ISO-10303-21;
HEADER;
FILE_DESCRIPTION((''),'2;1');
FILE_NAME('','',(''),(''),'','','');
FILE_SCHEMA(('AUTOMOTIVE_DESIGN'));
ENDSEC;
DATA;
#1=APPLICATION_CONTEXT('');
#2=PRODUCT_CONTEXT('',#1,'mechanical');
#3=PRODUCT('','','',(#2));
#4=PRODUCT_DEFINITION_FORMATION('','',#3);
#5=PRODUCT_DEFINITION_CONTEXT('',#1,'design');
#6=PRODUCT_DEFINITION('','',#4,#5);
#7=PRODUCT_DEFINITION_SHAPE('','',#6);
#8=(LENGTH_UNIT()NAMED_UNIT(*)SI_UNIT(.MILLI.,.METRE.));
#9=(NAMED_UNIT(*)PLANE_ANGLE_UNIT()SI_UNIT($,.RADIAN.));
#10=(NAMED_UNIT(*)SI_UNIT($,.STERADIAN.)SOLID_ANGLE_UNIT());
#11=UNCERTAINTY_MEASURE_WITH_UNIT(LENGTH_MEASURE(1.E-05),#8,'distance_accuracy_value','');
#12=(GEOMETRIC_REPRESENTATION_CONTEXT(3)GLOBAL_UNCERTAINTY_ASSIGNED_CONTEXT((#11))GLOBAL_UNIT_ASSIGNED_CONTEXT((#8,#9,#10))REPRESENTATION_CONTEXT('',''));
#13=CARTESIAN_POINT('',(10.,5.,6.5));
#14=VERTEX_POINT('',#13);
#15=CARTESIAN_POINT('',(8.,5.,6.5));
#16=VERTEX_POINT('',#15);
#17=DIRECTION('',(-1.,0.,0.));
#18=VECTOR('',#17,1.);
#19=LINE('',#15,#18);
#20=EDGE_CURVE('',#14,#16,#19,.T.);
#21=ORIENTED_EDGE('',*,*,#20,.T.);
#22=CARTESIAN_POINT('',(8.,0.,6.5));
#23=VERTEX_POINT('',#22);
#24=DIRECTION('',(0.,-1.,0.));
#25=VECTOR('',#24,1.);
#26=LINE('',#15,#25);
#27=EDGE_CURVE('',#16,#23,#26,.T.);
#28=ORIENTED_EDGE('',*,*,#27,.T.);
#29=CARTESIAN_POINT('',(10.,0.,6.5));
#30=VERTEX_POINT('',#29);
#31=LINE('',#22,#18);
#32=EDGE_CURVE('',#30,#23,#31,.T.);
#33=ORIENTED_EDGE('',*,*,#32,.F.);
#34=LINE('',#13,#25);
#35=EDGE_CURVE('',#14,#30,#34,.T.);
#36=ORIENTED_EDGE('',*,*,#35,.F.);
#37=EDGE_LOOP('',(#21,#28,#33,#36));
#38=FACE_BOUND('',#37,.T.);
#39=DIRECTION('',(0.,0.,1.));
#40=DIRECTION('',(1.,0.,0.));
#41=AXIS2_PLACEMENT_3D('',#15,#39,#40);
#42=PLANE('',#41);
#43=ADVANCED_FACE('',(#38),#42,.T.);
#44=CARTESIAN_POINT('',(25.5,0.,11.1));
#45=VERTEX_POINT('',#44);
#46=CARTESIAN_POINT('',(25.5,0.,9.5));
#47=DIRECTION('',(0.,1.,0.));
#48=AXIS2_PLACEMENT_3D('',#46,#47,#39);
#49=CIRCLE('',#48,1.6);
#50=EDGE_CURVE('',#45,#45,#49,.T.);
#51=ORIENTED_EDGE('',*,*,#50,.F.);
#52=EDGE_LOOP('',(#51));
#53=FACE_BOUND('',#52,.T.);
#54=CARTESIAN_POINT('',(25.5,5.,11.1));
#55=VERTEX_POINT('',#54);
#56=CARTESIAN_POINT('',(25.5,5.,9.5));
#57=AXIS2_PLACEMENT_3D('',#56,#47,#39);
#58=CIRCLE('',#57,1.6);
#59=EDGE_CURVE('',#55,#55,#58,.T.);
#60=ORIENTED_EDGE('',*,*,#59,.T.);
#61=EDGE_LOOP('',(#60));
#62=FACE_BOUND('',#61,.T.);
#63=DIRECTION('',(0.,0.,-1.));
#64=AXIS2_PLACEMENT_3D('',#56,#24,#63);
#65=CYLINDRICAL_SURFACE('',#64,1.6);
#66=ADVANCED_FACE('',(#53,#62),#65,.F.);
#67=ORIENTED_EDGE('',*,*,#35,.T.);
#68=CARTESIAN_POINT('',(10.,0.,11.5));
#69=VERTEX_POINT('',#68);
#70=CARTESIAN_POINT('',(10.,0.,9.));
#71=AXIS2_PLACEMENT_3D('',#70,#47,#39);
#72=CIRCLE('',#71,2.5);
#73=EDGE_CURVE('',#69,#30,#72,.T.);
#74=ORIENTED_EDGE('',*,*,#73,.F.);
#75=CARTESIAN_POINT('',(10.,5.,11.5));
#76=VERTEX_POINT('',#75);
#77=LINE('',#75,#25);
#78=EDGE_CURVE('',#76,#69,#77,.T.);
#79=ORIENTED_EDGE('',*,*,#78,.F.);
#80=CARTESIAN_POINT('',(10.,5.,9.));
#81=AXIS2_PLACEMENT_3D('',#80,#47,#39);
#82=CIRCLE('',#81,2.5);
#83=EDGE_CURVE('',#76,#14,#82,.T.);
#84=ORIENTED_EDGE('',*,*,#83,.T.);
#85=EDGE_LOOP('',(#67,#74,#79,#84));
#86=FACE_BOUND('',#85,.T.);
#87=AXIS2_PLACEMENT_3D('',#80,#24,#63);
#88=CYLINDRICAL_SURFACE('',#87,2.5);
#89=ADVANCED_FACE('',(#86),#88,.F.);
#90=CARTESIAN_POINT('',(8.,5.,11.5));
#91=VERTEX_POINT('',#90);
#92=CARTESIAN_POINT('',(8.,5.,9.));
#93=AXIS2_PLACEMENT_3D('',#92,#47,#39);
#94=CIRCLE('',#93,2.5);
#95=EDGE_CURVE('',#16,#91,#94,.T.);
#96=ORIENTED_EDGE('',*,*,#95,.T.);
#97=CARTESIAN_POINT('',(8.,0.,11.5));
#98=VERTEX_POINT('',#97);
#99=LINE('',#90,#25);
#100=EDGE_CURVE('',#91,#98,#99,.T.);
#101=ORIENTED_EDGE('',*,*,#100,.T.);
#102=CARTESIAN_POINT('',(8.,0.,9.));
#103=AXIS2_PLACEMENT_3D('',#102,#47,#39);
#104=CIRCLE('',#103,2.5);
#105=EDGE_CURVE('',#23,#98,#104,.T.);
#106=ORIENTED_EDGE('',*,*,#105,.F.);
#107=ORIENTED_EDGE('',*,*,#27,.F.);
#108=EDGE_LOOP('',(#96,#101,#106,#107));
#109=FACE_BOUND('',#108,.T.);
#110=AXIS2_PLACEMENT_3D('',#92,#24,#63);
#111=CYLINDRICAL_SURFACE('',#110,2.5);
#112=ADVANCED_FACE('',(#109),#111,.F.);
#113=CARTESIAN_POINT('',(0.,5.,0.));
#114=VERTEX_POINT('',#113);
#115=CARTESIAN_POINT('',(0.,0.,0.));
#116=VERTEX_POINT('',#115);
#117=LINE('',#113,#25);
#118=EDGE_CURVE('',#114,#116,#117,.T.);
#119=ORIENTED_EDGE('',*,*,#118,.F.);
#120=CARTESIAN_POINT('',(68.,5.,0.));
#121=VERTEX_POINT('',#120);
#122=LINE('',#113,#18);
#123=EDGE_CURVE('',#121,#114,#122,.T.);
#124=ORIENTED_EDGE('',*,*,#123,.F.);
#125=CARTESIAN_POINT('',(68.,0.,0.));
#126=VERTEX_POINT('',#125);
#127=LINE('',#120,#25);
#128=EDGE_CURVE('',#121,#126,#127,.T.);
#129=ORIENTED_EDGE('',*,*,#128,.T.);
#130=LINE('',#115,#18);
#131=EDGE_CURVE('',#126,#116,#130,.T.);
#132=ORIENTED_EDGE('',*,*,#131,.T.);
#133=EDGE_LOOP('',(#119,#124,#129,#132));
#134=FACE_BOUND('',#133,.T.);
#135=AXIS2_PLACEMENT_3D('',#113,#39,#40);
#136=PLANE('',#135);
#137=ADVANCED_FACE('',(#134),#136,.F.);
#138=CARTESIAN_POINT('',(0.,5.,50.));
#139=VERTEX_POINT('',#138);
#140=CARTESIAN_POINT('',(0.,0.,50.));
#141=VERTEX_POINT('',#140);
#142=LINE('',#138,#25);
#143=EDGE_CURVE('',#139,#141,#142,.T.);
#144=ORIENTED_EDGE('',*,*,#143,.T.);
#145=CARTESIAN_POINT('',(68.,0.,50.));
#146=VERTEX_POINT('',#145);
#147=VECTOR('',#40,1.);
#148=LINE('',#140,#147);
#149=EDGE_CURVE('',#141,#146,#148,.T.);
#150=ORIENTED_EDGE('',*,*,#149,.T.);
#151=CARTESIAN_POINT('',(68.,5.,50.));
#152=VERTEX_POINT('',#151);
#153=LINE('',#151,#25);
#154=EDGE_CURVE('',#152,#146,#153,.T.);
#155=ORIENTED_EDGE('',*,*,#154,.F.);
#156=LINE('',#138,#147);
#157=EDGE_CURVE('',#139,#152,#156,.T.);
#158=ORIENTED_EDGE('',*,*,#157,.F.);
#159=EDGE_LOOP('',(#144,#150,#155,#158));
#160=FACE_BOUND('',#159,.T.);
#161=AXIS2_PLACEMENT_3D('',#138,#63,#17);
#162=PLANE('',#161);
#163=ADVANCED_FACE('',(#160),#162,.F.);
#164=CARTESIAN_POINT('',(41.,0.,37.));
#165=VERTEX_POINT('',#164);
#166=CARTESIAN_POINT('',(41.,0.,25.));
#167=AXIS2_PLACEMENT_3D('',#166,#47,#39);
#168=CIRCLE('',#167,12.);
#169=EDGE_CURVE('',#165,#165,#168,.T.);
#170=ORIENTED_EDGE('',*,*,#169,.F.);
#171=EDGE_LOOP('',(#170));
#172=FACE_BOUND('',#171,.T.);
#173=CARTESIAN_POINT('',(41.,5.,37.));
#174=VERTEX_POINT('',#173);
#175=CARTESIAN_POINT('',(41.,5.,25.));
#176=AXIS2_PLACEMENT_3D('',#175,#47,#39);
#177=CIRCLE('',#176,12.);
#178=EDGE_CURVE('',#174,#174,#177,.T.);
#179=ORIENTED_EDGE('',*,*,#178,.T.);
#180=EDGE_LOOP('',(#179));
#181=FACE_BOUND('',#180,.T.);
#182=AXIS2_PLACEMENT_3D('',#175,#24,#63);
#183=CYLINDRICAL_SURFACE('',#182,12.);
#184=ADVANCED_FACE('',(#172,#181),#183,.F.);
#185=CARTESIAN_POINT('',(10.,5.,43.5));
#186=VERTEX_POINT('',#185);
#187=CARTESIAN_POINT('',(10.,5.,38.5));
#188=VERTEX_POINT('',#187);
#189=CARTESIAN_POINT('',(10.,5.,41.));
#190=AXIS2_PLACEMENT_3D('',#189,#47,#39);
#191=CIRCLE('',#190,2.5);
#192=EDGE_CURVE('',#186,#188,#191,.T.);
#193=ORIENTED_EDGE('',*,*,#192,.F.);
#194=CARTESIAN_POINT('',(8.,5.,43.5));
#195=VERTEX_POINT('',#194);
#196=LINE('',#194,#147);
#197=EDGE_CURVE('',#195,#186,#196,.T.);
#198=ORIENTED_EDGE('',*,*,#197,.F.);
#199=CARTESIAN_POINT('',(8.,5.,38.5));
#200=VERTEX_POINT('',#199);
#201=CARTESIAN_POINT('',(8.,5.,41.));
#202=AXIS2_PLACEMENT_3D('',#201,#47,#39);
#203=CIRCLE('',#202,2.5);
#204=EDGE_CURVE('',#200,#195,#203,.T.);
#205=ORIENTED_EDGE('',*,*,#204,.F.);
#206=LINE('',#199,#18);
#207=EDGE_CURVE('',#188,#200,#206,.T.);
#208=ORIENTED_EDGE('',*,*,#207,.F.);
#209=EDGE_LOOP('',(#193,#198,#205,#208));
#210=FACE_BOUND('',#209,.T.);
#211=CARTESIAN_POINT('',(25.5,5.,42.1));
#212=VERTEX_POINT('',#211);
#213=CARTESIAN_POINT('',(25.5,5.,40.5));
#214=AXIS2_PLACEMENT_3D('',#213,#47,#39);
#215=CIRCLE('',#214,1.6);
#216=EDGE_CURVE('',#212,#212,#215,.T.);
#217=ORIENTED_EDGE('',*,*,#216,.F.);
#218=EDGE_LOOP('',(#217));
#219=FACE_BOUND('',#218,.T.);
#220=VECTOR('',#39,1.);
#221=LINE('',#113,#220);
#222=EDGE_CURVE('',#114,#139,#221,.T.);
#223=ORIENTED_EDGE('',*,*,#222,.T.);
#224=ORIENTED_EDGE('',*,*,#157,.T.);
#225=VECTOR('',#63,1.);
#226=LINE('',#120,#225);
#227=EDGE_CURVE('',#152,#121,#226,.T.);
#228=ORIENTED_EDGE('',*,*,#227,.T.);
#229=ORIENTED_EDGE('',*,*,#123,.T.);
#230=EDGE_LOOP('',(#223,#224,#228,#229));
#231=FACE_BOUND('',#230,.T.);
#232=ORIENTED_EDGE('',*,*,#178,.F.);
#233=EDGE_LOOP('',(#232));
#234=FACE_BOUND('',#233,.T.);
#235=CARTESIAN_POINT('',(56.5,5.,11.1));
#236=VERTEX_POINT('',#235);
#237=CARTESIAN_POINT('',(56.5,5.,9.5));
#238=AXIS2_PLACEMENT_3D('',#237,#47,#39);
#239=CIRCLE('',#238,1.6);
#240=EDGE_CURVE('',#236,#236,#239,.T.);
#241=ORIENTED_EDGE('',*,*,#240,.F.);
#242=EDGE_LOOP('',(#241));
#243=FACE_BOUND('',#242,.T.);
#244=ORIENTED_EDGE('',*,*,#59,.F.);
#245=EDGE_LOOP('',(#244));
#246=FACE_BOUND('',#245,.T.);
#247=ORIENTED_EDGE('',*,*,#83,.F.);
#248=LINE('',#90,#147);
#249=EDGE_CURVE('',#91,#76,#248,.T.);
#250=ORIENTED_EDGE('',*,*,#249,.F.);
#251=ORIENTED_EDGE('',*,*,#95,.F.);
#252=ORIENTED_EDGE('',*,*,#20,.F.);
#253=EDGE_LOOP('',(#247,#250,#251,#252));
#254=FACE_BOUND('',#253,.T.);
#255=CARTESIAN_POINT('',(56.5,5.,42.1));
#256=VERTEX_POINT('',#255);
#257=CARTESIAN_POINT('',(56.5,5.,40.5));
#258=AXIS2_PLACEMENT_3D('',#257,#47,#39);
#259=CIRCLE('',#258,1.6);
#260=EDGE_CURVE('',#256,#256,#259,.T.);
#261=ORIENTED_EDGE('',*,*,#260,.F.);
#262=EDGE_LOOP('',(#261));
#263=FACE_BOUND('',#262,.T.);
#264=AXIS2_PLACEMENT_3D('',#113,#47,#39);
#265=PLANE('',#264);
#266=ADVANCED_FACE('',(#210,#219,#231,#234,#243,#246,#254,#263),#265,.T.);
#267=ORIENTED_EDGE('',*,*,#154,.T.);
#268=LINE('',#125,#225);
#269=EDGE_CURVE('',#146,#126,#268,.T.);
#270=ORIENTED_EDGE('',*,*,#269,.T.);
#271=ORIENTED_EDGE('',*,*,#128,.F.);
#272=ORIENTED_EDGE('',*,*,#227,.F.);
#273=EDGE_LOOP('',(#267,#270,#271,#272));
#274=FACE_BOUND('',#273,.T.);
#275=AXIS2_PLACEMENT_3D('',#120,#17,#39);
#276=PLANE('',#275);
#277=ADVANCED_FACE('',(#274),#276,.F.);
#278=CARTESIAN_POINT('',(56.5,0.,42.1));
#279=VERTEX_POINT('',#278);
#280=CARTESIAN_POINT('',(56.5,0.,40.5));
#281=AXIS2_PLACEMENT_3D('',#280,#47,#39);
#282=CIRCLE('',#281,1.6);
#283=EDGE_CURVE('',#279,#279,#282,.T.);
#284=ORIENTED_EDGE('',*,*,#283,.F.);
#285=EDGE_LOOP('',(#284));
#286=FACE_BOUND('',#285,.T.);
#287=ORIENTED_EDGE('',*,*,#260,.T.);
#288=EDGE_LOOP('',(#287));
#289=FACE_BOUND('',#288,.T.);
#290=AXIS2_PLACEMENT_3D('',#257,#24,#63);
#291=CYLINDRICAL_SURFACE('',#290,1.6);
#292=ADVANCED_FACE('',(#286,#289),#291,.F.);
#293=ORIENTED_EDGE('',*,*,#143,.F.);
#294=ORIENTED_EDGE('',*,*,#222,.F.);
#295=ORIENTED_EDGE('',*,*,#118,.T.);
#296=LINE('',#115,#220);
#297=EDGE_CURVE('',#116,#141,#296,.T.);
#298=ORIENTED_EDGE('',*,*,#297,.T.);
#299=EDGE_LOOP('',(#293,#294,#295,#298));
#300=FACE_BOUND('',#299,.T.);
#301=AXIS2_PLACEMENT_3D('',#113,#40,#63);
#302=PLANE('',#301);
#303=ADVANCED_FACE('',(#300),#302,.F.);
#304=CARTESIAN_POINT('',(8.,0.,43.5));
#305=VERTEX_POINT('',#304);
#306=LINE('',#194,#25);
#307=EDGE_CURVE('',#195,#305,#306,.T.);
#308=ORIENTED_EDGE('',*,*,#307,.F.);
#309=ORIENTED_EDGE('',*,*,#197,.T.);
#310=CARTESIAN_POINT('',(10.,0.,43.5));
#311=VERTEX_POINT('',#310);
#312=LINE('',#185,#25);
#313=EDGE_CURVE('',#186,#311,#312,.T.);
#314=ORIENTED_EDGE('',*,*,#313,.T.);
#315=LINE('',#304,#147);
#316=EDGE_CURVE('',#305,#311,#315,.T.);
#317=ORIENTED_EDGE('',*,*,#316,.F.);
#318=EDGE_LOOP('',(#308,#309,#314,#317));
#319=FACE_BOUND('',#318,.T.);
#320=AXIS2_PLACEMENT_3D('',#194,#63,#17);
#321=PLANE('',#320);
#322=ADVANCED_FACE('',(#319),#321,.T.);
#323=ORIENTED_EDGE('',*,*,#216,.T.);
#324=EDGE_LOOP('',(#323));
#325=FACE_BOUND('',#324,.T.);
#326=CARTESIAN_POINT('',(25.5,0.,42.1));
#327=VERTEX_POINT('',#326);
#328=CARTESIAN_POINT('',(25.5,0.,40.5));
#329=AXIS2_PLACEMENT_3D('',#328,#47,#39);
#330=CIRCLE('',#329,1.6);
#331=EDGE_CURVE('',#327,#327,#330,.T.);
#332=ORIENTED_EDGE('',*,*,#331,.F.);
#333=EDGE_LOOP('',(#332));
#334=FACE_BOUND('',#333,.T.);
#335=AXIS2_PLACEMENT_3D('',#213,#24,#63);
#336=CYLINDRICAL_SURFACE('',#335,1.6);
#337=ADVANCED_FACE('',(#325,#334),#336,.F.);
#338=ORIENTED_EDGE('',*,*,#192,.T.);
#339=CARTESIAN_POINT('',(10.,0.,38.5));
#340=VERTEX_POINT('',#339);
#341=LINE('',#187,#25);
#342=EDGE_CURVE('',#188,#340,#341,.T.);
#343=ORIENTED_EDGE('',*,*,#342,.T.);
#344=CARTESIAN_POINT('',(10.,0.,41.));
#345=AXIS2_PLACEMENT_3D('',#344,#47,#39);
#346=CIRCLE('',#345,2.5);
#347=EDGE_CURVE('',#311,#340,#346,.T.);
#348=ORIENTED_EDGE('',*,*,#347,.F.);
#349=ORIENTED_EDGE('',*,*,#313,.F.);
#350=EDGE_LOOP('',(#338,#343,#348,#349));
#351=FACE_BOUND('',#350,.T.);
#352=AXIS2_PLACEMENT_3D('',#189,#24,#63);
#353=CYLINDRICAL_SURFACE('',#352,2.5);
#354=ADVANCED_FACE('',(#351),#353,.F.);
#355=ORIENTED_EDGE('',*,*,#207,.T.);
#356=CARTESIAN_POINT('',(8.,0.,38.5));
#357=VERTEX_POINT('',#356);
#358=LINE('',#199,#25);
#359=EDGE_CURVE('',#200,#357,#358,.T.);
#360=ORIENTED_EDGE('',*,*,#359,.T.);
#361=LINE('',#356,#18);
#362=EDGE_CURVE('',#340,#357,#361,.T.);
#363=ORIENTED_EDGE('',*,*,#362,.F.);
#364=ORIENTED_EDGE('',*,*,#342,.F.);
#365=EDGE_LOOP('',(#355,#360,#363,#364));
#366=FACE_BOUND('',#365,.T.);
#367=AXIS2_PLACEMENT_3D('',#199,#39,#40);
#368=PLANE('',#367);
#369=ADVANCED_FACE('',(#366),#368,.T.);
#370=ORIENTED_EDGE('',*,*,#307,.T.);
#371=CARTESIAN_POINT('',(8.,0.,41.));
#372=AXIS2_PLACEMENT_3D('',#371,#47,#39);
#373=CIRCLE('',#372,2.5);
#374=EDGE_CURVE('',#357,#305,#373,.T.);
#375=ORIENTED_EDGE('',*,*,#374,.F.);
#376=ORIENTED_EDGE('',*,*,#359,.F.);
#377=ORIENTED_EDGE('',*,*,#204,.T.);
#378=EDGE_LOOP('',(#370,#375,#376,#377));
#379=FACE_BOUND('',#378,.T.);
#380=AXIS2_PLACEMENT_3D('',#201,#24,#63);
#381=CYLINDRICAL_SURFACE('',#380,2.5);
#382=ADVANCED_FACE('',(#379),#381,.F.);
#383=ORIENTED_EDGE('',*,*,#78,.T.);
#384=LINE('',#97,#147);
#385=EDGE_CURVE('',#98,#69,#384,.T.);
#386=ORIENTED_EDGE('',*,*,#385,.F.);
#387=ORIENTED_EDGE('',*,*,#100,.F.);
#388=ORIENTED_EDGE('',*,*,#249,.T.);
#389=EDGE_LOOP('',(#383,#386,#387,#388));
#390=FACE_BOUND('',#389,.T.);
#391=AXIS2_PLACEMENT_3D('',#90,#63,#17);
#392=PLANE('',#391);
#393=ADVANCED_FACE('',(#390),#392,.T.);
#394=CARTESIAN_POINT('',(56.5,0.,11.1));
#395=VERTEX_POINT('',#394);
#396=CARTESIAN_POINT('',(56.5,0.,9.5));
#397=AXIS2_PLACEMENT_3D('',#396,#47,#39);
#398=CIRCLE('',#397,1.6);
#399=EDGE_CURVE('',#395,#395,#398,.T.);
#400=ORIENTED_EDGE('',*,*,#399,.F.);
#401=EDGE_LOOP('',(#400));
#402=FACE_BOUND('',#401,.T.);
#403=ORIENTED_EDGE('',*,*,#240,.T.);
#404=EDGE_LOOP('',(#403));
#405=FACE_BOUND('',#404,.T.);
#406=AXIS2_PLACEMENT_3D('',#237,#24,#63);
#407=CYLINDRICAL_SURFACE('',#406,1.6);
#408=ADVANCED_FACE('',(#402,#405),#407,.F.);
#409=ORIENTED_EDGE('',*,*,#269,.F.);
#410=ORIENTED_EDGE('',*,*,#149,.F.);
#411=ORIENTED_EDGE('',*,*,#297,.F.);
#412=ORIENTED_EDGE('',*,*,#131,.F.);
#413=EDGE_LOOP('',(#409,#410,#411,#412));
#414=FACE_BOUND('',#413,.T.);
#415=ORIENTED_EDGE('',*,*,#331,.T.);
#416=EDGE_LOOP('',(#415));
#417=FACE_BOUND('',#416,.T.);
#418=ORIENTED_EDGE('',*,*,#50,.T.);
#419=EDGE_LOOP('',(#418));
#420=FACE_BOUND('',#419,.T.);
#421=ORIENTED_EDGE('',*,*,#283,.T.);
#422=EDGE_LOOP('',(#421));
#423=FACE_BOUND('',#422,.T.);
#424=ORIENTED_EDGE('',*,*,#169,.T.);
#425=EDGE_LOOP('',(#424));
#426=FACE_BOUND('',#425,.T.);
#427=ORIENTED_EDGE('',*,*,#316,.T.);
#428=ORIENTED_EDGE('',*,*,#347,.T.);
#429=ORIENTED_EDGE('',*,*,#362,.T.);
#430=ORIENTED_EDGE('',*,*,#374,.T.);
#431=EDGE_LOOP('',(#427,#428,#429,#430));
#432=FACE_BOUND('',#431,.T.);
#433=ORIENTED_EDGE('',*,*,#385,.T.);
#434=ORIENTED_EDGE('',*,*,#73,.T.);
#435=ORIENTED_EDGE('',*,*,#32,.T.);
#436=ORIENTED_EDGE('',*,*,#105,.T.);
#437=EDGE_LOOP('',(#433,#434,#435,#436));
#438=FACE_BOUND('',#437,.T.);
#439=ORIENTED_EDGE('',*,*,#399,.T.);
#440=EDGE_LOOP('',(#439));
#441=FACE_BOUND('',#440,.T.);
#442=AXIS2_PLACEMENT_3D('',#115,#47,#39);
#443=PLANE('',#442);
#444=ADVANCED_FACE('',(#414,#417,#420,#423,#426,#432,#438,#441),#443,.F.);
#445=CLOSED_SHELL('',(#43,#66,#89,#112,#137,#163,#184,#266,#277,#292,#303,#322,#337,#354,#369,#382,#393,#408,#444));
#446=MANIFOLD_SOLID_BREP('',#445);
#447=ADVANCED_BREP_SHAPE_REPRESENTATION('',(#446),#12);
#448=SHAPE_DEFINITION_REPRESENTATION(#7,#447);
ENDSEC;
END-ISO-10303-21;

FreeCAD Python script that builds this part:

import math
import FreeCAD as App
import Part
import Sketcher

V = App.Vector
Q = App.Units.Quantity


def add_polygon(sketch, points):
    """Adds a closed chain of lines whose ends are joined by coincident constraints."""
    first, n = sketch.GeometryCount, len(points)
    for a, b in zip(points, points[1:] + points[:1]):
        sketch.addGeometry(Part.LineSegment(App.Vector(*a, 0), App.Vector(*b, 0)), False)
    for i in range(n):
        sketch.addConstraint(Sketcher.Constraint("Coincident", first + i, 2, first + (i + 1) % n, 1))

doc = App.newDocument("Part")
params = doc.addObject("Spreadsheet::Sheet", "Params")
for row, (alias, value) in enumerate([
    ("sketch1_diameter", "24 mm"),
    ("sketch1_diameter2", "3.2 mm"),
    ("sketch1_radius", "2.5 mm"),
    ("sketch1_width", "68 mm"),
    ("sketch1_width2", "2 mm"),
    ("pad1_length", "5 mm"),
], start=1):
    params.set(f"A{row}", alias)
    params.set(f"B{row}", "=" + value)
    params.setAlias(f"B{row}", alias)

body = doc.addObject("PartDesign::Body", "Body")

sketch1 = doc.addObject("Sketcher::SketchObject", "Sketch")
body.addObject(sketch1)
sketch1.AttachmentSupport = (doc.XZ_Plane, [""])
sketch1.MapMode = "FlatFace"
add_polygon(sketch1, [(0, 0), (0, 50), (68, 50), (68, 0)])
sketch1.addGeometry(Part.ArcOfCircle(Part.Circle(V(8, 41, 0), V(0, 0, 1), 2.5), math.radians(90), math.radians(270)), False)
sketch1.addGeometry(Part.LineSegment(V(8, 38.5, 0), V(10, 38.5, 0)), False)
sketch1.addGeometry(Part.ArcOfCircle(Part.Circle(V(10, 41, 0), V(0, 0, 1), 2.5), math.radians(-90), math.radians(90)), False)
sketch1.addGeometry(Part.LineSegment(V(10, 43.5, 0), V(8, 43.5, 0)), False)
sketch1.addGeometry(Part.Circle(V(25.5, 40.5, 0), V(0, 0, 1), 1.6), False)
sketch1.addGeometry(Part.Circle(V(56.5, 40.5, 0), V(0, 0, 1), 1.6), False)
sketch1.addGeometry(Part.ArcOfCircle(Part.Circle(V(8, 9, 0), V(0, 0, 1), 2.5), math.radians(90), math.radians(270)), False)
sketch1.addGeometry(Part.LineSegment(V(8, 6.5, 0), V(10, 6.5, 0)), False)
sketch1.addGeometry(Part.ArcOfCircle(Part.Circle(V(10, 9, 0), V(0, 0, 1), 2.5), math.radians(-90), math.radians(90)), False)
sketch1.addGeometry(Part.LineSegment(V(10, 11.5, 0), V(8, 11.5, 0)), False)
sketch1.addGeometry(Part.Circle(V(25.5, 9.5, 0), V(0, 0, 1), 1.6), False)
sketch1.addGeometry(Part.Circle(V(41, 25, 0), V(0, 0, 1), 12), False)
sketch1.addGeometry(Part.Circle(V(56.5, 9.5, 0), V(0, 0, 1), 1.6), False)
sketch1.addConstraint([
    Sketcher.Constraint("Tangent", 4, 2, 5, 1),
    Sketcher.Constraint("Tangent", 5, 2, 6, 1),
    Sketcher.Constraint("Tangent", 6, 2, 7, 1),
    Sketcher.Constraint("Tangent", 7, 2, 4, 1),
    Sketcher.Constraint("Tangent", 10, 2, 11, 1),
    Sketcher.Constraint("Tangent", 11, 2, 12, 1),
    Sketcher.Constraint("Tangent", 12, 2, 13, 1),
    Sketcher.Constraint("Tangent", 13, 2, 10, 1),
    Sketcher.Constraint("Vertical", 0),
    Sketcher.Constraint("Horizontal", 1),
    Sketcher.Constraint("Vertical", 2),
    Sketcher.Constraint("Horizontal", 3),
    Sketcher.Constraint("Horizontal", 5),
    Sketcher.Constraint("Horizontal", 7),
    Sketcher.Constraint("Horizontal", 11),
    Sketcher.Constraint("Horizontal", 13),
    Sketcher.Constraint("Coincident", 3, 2, -1, 1),
    Sketcher.Constraint("Equal", 8, 9),
    Sketcher.Constraint("Equal", 6, 10),
    Sketcher.Constraint("Equal", 9, 14),
    Sketcher.Constraint("Equal", 14, 16),
    Sketcher.Constraint("Horizontal", 8, 3, 9, 3),
    Sketcher.Constraint("Horizontal", 14, 3, 16, 3),
    Sketcher.Constraint("Vertical", 4, 3, 10, 3),
    Sketcher.Constraint("Vertical", 6, 3, 12, 3),
    Sketcher.Constraint("Vertical", 8, 3, 14, 3),
    Sketcher.Constraint("Vertical", 9, 3, 16, 3),
    Sketcher.Constraint("Diameter", 15, Q("24 mm")),
    Sketcher.Constraint("Diameter", 8, Q("3.2 mm")),
    Sketcher.Constraint("Radius", 4, Q("2.5 mm")),
    Sketcher.Constraint("DistanceX", 1, 1, 1, 2, Q("68 mm")),
    Sketcher.Constraint("DistanceX", 5, 1, 5, 2, Q("2 mm")),
    Sketcher.Constraint("DistanceY", 0, 1, 0, 2, Q("50 mm")),
    Sketcher.Constraint("DistanceX", -1, 1, 4, 3, Q("8 mm")),
    Sketcher.Constraint("DistanceY", -1, 1, 4, 3, Q("41 mm")),
    Sketcher.Constraint("DistanceY", -1, 1, 10, 3, Q("9 mm")),
    Sketcher.Constraint("DistanceX", -1, 1, 15, 3, Q("41 mm")),
    Sketcher.Constraint("DistanceY", -1, 1, 15, 3, Q("25 mm")),
    Sketcher.Constraint("DistanceX", 8, 3, 9, 3, Q("31 mm")),
    Sketcher.Constraint("DistanceY", 14, 3, 8, 3, Q("31 mm")),
    Sketcher.Constraint("DistanceY", 4, 2, 8, 3, Q("2 mm")),
    Sketcher.Constraint("DistanceX", -1, 1, 8, 3, Q("25.5 mm")),
])
sketch1.setExpression("Constraints[31]", "Params.sketch1_diameter")
sketch1.setExpression("Constraints[32]", "Params.sketch1_diameter2")
sketch1.setExpression("Constraints[33]", "Params.sketch1_radius")
sketch1.setExpression("Constraints[34]", "Params.sketch1_width")
sketch1.setExpression("Constraints[35]", "Params.sketch1_width2")
pad1 = doc.addObject("PartDesign::Pad", "Pad")
body.addObject(pad1)
pad1.Profile = sketch1
pad1.setExpression("Length", "Params.pad1_length")
pad1.Reversed = True

doc.recompute()
